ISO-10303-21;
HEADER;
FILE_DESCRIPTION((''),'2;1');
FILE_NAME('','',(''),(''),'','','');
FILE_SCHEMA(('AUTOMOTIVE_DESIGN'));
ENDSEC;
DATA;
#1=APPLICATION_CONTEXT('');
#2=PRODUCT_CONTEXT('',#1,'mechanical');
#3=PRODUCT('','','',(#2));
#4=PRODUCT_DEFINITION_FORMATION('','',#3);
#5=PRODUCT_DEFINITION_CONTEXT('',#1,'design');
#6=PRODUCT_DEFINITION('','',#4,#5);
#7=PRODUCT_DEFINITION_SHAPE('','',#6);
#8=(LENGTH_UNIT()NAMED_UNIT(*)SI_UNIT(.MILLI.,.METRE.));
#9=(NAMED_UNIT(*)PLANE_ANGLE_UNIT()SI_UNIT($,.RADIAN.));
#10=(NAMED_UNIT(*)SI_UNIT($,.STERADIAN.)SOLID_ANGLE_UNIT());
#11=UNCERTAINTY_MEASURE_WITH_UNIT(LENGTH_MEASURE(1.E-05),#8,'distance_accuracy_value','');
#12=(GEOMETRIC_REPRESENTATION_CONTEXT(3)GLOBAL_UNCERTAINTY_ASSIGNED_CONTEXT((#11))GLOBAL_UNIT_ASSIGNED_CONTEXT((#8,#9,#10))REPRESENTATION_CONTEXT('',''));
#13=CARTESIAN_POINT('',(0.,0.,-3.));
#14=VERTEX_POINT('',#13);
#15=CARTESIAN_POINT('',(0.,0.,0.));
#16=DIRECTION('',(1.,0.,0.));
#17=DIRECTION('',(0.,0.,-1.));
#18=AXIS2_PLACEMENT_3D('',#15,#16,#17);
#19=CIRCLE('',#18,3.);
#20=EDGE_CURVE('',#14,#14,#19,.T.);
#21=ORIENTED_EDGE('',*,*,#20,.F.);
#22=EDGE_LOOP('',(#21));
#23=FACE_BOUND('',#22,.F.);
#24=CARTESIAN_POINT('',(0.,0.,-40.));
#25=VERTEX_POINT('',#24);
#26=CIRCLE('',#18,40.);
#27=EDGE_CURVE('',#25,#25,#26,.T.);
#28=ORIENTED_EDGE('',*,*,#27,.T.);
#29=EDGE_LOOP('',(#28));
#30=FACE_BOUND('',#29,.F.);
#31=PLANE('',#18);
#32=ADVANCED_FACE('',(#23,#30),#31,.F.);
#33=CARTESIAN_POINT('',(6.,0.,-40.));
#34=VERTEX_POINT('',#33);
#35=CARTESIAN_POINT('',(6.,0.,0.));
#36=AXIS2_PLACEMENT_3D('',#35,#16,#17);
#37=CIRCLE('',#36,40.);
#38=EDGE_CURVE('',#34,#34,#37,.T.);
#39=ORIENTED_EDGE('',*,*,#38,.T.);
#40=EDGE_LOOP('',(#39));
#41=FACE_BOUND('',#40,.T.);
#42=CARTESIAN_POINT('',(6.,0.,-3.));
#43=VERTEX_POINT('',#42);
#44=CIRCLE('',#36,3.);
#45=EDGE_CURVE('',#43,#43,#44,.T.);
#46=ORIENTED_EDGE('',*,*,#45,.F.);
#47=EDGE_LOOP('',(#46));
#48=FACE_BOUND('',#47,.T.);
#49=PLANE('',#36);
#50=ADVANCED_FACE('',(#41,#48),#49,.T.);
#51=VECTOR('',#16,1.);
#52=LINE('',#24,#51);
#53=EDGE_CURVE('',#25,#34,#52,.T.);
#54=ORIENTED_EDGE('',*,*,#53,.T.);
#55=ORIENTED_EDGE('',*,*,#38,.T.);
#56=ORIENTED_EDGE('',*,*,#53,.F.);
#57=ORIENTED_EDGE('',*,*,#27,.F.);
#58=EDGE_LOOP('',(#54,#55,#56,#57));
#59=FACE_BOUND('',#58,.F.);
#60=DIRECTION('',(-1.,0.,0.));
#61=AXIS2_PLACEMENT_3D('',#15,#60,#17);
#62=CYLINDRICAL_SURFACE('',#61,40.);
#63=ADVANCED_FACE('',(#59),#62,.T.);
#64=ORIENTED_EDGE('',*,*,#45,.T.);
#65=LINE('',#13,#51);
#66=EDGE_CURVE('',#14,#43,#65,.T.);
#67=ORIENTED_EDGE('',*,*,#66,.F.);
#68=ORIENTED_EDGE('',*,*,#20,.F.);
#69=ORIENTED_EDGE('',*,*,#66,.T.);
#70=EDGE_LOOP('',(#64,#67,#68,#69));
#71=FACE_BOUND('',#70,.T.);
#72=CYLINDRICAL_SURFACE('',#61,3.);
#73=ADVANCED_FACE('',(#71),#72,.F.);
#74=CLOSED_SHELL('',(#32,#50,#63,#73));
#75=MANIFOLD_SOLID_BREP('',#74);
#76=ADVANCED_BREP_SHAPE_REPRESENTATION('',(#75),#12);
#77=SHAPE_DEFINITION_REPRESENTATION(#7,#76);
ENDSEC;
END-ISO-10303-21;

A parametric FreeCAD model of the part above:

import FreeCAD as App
import Part
import Sketcher
Q = App.Units.Quantity

doc = App.newDocument("Part")
body = doc.addObject("PartDesign::Body", "Body")

sketch1 = body.newObject("Sketcher::SketchObject", "Sketch")
sketch1.AttachmentSupport = (doc.getObject("YZ_Plane"), [""])
sketch1.MapMode = "FlatFace"
sketch1.addGeometry([
    Part.Circle(App.Vector(0, 0, 0), App.Vector(0, 0, 1), 40),
    Part.Circle(App.Vector(0, 0, 0), App.Vector(0, 0, 1), 3),
], False)
sketch1.addConstraint([
    Sketcher.Constraint("Coincident", 0, 3, -1, 1),
    Sketcher.Constraint("Coincident", 1, 3, -1, 1),
    Sketcher.Constraint("Diameter", 0, Q("80 mm")),
    Sketcher.Constraint("Diameter", 1, Q("6 mm")),
])
pad1 = body.newObject("PartDesign::Pad", "Pad")
pad1.Profile = sketch1
pad1.Length = 6

doc.recompute()
